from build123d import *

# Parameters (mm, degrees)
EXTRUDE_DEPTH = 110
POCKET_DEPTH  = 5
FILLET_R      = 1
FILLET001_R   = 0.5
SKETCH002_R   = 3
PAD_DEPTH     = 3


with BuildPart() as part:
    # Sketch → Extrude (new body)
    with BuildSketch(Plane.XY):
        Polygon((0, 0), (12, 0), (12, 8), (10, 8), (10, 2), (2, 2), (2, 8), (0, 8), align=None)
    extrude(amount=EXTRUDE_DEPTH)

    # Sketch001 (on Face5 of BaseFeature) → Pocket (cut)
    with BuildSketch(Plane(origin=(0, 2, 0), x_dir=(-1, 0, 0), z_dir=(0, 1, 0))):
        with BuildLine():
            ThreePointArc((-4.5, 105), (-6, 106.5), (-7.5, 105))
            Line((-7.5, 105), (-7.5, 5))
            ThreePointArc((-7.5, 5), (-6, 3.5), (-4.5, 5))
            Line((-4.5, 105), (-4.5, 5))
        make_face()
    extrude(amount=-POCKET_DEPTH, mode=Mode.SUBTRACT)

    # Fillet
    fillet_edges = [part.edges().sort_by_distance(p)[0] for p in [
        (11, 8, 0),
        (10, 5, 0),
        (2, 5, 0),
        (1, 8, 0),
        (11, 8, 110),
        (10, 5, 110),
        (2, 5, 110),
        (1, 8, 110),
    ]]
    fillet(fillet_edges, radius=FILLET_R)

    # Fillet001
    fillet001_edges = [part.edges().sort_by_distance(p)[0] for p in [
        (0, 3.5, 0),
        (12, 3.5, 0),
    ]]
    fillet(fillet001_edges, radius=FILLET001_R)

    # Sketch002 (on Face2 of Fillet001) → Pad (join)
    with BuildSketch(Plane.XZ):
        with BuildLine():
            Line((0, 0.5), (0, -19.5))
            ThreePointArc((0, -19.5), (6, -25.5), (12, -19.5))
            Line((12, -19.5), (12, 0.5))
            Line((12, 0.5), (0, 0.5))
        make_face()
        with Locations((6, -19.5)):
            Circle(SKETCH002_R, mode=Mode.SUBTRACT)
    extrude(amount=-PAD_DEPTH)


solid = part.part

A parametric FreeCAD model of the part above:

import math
import FreeCAD as App
import Part
import Sketcher

V = App.Vector
Q = App.Units.Quantity


def edges_at(feature, points):
    """Names of the edges that pass closest to the given points."""
    edges = feature.Shape.Edges
    near = lambda p: min(range(len(edges)), key=lambda i: edges[i].distToShape(Part.Vertex(*p))[0])
    return sorted({f"Edge{near(p) + 1}" for p in points})

doc = App.newDocument("Part")
body = doc.addObject("PartDesign::Body", "Body")

# Sketch on XY plane
sketch1 = body.newObject("Sketcher::SketchObject", "Sketch")
sketch1.AttachmentSupport = (doc.getObject("XY_Plane"), [""])
sketch1.MapMode = "FlatFace"
sketch1.addGeometry([
    Part.LineSegment(V(0, 0, 0), V(12, 0, 0)),  # 0
    Part.LineSegment(V(12, 0, 0), V(12, 8, 0)),  # 1
    Part.LineSegment(V(12, 8, 0), V(10, 8, 0)),  # 2
    Part.LineSegment(V(10, 8, 0), V(10, 2, 0)),  # 3
    Part.LineSegment(V(10, 2, 0), V(2, 2, 0)),  # 4
    Part.LineSegment(V(2, 2, 0), V(2, 8, 0)),  # 5
    Part.LineSegment(V(2, 8, 0), V(0, 8, 0)),  # 6
    Part.LineSegment(V(0, 8, 0), V(0, 0, 0)),  # 7
], False)
sketch1.addConstraint([
    Sketcher.Constraint("Coincident", 0, 2, 1, 1),
    Sketcher.Constraint("Coincident", 1, 2, 2, 1),
    Sketcher.Constraint("Coincident", 2, 2, 3, 1),
    Sketcher.Constraint("Coincident", 3, 2, 4, 1),
    Sketcher.Constraint("Coincident", 4, 2, 5, 1),
    Sketcher.Constraint("Coincident", 5, 2, 6, 1),
    Sketcher.Constraint("Coincident", 6, 2, 7, 1),
    Sketcher.Constraint("Coincident", 7, 2, 0, 1),
    Sketcher.Constraint("Horizontal", 0),
    Sketcher.Constraint("Vertical", 1),
    Sketcher.Constraint("Horizontal", 2),
    Sketcher.Constraint("Vertical", 3),
    Sketcher.Constraint("Horizontal", 4),
    Sketcher.Constraint("Vertical", 5),
    Sketcher.Constraint("Horizontal", 6),
    Sketcher.Constraint("Vertical", 7),
    Sketcher.Constraint("Coincident", 7, 2, -1, 1),
    Sketcher.Constraint("Horizontal", 2, 2, 5, 2),
    Sketcher.Constraint("Equal", 2, 6),
    Sketcher.Constraint("Equal", 4, 1),
    Sketcher.Constraint("DistanceX", 0, 1, 0, 2, Q("12 mm")),
    Sketcher.Constraint("DistanceX", 2, 2, 2, 1, Q("2 mm")),
    Sketcher.Constraint("DistanceY", 3, 2, 3, 1, Q("6 mm")),
])
pad1 = body.newObject("PartDesign::Pad", "Pad")
pad1.Profile = sketch1
pad1.Length = 110

# Sketch on XZ plane
sketch2 = body.newObject("Sketcher::SketchObject", "Sketch001")
sketch2.AttachmentSupport = (doc.getObject("XZ_Plane"), [""])
sketch2.MapMode = "FlatFace"
sketch2.AttachmentOffset = App.Placement(V(0, 0, -2), App.Rotation())
sketch2.addGeometry([
    Part.ArcOfCircle(Part.Circle(V(6, 105, 0), V(0, 0, 1), 1.5), math.radians(0), math.radians(180)),
    Part.LineSegment(V(7.5, 105, 0), V(7.5, 5, 0)),
    Part.ArcOfCircle(Part.Circle(V(6, 5, 0), V(0, 0, 1), 1.5), math.radians(180), math.radians(360)),
    Part.LineSegment(V(4.5, 5, 0), V(4.5, 105, 0)),
], False)
sketch2.addConstraint([
    Sketcher.Constraint("Tangent", 0, 1, 1, 1),
    Sketcher.Constraint("Tangent", 1, 2, 2, 2),
    Sketcher.Constraint("Tangent", 2, 1, 3, 1),
    Sketcher.Constraint("Tangent", 3, 2, 0, 2),
    Sketcher.Constraint("Vertical", 1),
    Sketcher.Constraint("Vertical", 3),
    Sketcher.Constraint("Radius", 0, Q("1.5 mm")),
    Sketcher.Constraint("DistanceY", 1, 2, 1, 1, Q("100 mm")),
    Sketcher.Constraint("DistanceX", -1, 1, 0, 3, Q("6 mm")),
    Sketcher.Constraint("DistanceY", -1, 1, 0, 3, Q("105 mm")),
])
pocket1 = body.newObject("PartDesign::Pocket", "Pocket")
pocket1.Profile = sketch2
pocket1.Length = 5
pocket1.Reversed = True
doc.recompute()

fillet = body.newObject("PartDesign::Fillet", "Fillet")
fillet.Base = (pocket1, edges_at(pocket1, [
    (11, 8, 0),
    (10, 5, 0),
    (2, 5, 0),
    (1, 8, 0),
    (11, 8, 110),
    (10, 5, 110),
    (2, 5, 110),
    (1, 8, 110),
]))
fillet.Radius = 1
doc.recompute()

fillet2 = body.newObject("PartDesign::Fillet", "Fillet001")
fillet2.Base = (fillet, edges_at(fillet, [(0, 3.5, 0), (12, 3.5, 0)]))
fillet2.Radius = 0.5

# Sketch on XZ plane
sketch3 = body.newObject("Sketcher::SketchObject", "Sketch002")
sketch3.AttachmentSupport = (doc.getObject("XZ_Plane"), [""])
sketch3.MapMode = "FlatFace"
sketch3.addGeometry([
    Part.LineSegment(V(0, 0.5, 0), V(0, -19.5, 0)),  # 0
    Part.ArcOfCircle(Part.Circle(V(6, -19.5, 0), V(0, 0, 1), 6), math.radians(180), math.radians(360)),  # 1
    Part.LineSegment(V(12, -19.5, 0), V(12, 0.5, 0)),  # 2
    Part.LineSegment(V(12, 0.5, 0), V(0, 0.5, 0)),  # 3
    Part.Circle(V(6, -19.5, 0), V(0, 0, 1), 3),  # 4
], False)
sketch3.addConstraint([
    Sketcher.Constraint("Tangent", 0, 2, 1, 1),
    Sketcher.Constraint("Tangent", 1, 2, 2, 1),
    Sketcher.Constraint("Coincident", 2, 2, 3, 1),
    Sketcher.Constraint("Coincident", 3, 2, 0, 1),
    Sketcher.Constraint("Vertical", 0),
    Sketcher.Constraint("Vertical", 2),
    Sketcher.Constraint("Horizontal", 3),
    Sketcher.Constraint("Coincident", 4, 3, 1, 3),
    Sketcher.Constraint("PointOnObject", 0, 2, -2),
    Sketcher.Constraint("Diameter", 4, Q("6 mm")),
    Sketcher.Constraint("Radius", 1, Q("6 mm")),
    Sketcher.Constraint("DistanceY", 0, 2, 0, 1, Q("20 mm")),
    Sketcher.Constraint("DistanceY", 1, 3, -1, 1, Q("19.5 mm")),
])
pad2 = body.newObject("PartDesign::Pad", "Pad001")
pad2.Profile = sketch3
pad2.Length = 3
pad2.Reversed = True

doc.recompute()
